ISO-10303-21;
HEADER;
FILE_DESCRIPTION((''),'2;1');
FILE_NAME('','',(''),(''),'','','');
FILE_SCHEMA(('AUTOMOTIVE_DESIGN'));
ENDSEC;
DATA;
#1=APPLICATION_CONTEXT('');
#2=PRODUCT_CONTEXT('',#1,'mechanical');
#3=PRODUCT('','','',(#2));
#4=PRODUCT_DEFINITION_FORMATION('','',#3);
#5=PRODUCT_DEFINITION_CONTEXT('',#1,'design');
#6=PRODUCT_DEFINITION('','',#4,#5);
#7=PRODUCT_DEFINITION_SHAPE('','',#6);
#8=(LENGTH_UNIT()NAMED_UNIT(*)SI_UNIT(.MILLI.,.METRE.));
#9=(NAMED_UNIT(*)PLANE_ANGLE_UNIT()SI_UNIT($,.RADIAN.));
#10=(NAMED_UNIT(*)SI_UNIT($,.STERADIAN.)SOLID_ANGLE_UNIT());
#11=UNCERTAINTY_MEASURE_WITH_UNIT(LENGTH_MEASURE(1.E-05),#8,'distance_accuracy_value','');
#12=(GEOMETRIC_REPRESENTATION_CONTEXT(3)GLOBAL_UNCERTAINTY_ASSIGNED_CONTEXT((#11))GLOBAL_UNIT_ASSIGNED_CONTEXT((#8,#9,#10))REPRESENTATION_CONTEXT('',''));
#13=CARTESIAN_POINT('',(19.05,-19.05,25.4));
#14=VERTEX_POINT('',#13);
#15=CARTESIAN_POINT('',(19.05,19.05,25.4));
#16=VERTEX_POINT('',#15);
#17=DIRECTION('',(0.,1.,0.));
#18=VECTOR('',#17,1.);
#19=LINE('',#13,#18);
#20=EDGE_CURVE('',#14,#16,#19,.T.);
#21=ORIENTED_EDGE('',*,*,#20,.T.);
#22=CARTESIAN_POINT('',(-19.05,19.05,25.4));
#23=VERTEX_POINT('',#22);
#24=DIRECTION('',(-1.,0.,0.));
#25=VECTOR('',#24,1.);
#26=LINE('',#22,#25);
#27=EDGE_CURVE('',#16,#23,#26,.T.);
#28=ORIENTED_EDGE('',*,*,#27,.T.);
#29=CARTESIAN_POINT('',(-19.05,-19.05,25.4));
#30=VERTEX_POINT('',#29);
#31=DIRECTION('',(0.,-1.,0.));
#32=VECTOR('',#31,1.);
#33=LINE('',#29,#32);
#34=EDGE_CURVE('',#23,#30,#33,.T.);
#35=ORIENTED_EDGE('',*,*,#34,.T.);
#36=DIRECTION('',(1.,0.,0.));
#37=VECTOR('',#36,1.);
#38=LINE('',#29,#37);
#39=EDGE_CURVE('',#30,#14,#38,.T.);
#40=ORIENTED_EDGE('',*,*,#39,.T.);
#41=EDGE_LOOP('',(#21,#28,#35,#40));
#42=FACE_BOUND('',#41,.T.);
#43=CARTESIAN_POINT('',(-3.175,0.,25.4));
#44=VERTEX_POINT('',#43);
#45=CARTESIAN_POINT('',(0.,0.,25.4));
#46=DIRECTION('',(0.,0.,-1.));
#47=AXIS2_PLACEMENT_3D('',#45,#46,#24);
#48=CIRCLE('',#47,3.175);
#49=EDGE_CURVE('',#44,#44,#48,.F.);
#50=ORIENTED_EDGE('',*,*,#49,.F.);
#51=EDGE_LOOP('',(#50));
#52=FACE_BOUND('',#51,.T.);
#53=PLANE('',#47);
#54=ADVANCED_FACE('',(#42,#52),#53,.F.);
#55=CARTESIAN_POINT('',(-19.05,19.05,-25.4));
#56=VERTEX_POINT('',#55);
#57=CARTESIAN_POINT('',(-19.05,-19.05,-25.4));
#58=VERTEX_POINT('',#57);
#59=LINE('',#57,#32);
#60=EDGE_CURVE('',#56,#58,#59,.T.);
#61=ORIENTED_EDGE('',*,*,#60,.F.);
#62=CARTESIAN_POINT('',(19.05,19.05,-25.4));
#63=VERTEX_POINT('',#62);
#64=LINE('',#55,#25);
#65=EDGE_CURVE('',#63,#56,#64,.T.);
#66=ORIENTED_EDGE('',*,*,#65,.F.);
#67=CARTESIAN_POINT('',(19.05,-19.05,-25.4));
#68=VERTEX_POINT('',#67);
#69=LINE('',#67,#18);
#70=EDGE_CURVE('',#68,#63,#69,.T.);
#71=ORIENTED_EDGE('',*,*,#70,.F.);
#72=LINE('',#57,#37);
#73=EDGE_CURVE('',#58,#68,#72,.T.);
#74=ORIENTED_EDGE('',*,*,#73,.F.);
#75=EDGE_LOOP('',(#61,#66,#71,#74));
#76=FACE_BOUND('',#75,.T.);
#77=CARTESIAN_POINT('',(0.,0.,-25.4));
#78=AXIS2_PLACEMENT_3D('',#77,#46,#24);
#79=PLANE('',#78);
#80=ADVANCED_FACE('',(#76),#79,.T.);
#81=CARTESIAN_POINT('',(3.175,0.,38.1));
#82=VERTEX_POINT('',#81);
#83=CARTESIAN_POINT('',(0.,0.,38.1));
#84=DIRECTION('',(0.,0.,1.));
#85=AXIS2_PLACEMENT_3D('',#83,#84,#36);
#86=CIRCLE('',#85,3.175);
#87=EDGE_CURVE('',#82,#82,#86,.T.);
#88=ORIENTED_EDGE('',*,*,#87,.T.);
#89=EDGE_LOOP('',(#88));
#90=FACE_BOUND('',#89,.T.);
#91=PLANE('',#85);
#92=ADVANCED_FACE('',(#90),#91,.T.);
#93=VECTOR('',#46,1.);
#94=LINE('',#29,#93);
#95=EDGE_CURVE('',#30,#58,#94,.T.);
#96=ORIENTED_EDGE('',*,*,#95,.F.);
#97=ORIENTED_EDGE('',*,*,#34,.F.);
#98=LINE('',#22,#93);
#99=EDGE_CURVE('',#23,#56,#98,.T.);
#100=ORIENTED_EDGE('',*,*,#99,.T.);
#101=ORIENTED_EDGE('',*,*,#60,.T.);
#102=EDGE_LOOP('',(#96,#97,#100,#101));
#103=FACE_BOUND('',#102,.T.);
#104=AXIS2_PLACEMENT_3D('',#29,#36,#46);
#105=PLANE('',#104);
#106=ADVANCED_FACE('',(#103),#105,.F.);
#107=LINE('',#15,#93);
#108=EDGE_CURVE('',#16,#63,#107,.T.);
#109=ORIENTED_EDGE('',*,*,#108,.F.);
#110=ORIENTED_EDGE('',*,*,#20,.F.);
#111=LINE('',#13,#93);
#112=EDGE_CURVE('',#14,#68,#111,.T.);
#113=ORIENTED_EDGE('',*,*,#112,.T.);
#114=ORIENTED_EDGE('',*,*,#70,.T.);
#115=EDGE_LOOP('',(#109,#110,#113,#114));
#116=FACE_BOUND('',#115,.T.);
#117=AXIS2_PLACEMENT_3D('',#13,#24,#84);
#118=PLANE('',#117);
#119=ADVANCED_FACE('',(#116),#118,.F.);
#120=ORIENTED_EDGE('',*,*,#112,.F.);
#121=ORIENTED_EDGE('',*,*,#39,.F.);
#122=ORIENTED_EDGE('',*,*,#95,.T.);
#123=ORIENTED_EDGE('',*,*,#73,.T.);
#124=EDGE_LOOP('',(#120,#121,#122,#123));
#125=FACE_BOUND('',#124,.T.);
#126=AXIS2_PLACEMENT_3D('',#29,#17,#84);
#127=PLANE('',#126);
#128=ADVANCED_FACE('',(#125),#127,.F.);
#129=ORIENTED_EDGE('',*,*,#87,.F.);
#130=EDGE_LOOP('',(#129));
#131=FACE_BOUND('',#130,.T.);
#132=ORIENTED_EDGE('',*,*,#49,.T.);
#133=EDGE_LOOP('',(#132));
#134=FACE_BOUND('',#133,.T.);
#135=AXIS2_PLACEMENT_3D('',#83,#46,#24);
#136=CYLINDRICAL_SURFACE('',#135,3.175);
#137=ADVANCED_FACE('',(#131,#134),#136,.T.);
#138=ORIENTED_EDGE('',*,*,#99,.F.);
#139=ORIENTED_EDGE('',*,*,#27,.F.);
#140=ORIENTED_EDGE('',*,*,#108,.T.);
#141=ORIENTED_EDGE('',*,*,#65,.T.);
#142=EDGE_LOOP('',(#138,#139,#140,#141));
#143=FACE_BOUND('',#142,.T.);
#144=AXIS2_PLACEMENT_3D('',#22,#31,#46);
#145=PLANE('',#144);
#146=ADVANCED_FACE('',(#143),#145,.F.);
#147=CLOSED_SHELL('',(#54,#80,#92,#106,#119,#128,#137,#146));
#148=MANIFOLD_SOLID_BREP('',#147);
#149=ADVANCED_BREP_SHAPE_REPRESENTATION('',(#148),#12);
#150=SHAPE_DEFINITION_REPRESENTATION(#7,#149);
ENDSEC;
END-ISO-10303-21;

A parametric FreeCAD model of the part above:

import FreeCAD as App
import Part
import Sketcher
from FreeCAD import Vector
Q = App.Units.Quantity


def add_polygon(sketch, points):
    """Adds a closed chain of lines whose ends are joined by coincident constraints."""
    first, n = sketch.GeometryCount, len(points)
    for a, b in zip(points, points[1:] + points[:1]):
        sketch.addGeometry(Part.LineSegment(App.Vector(*a, 0), App.Vector(*b, 0)), False)
    for i in range(n):
        sketch.addConstraint(Sketcher.Constraint("Coincident", first + i, 2, first + (i + 1) % n, 1))

doc = App.newDocument("Part")
body = doc.addObject("PartDesign::Body", "Body")

sketch1 = doc.addObject("Sketcher::SketchObject", "Sketch")
body.addObject(sketch1)
sketch1.AttachmentSupport = (doc.XY_Plane, [""])
sketch1.MapMode = "FlatFace"
add_polygon(sketch1, [(-19, 19), (-19, -19), (19, -19), (19, 19)])
sketch1.addConstraint([
    Sketcher.Constraint("Vertical", 0),
    Sketcher.Constraint("Horizontal", 1),
    Sketcher.Constraint("Vertical", 2),
    Sketcher.Constraint("Horizontal", 3),
    Sketcher.Constraint("Symmetric", 0, 2, 2, 2, -1, 1),
    Sketcher.Constraint("Equal", 3, 0),
    Sketcher.Constraint("DistanceX", 1, 1, 1, 2, Q("1.5 in")),
])
pad1 = doc.addObject("PartDesign::Pad", "Pad")
body.addObject(pad1)
pad1.Profile = sketch1
pad1.Length = Q("2 in")
pad1.Midplane = True

sketch2 = doc.addObject("Sketcher::SketchObject", "Sketch001")
body.addObject(sketch2)
sketch2.AttachmentSupport = (doc.XY_Plane, [""])
sketch2.MapMode = "FlatFace"
sketch2.AttachmentOffset = App.Placement(Vector(0, 0, 1 * 25.4), App.Rotation())
sketch2.addGeometry(Part.Circle(Vector(0, 0, 0), Vector(0, 0, 1), 3.2), False)
sketch2.addConstraint([
    Sketcher.Constraint("Coincident", 0, 3, -1, 1),
    Sketcher.Constraint("Diameter", 0, Q("0.25 in")),
])
pad2 = doc.addObject("PartDesign::Pad", "Pad001")
body.addObject(pad2)
pad2.Profile = sketch2
pad2.Length = Q("0.5 in")

doc.recompute()
